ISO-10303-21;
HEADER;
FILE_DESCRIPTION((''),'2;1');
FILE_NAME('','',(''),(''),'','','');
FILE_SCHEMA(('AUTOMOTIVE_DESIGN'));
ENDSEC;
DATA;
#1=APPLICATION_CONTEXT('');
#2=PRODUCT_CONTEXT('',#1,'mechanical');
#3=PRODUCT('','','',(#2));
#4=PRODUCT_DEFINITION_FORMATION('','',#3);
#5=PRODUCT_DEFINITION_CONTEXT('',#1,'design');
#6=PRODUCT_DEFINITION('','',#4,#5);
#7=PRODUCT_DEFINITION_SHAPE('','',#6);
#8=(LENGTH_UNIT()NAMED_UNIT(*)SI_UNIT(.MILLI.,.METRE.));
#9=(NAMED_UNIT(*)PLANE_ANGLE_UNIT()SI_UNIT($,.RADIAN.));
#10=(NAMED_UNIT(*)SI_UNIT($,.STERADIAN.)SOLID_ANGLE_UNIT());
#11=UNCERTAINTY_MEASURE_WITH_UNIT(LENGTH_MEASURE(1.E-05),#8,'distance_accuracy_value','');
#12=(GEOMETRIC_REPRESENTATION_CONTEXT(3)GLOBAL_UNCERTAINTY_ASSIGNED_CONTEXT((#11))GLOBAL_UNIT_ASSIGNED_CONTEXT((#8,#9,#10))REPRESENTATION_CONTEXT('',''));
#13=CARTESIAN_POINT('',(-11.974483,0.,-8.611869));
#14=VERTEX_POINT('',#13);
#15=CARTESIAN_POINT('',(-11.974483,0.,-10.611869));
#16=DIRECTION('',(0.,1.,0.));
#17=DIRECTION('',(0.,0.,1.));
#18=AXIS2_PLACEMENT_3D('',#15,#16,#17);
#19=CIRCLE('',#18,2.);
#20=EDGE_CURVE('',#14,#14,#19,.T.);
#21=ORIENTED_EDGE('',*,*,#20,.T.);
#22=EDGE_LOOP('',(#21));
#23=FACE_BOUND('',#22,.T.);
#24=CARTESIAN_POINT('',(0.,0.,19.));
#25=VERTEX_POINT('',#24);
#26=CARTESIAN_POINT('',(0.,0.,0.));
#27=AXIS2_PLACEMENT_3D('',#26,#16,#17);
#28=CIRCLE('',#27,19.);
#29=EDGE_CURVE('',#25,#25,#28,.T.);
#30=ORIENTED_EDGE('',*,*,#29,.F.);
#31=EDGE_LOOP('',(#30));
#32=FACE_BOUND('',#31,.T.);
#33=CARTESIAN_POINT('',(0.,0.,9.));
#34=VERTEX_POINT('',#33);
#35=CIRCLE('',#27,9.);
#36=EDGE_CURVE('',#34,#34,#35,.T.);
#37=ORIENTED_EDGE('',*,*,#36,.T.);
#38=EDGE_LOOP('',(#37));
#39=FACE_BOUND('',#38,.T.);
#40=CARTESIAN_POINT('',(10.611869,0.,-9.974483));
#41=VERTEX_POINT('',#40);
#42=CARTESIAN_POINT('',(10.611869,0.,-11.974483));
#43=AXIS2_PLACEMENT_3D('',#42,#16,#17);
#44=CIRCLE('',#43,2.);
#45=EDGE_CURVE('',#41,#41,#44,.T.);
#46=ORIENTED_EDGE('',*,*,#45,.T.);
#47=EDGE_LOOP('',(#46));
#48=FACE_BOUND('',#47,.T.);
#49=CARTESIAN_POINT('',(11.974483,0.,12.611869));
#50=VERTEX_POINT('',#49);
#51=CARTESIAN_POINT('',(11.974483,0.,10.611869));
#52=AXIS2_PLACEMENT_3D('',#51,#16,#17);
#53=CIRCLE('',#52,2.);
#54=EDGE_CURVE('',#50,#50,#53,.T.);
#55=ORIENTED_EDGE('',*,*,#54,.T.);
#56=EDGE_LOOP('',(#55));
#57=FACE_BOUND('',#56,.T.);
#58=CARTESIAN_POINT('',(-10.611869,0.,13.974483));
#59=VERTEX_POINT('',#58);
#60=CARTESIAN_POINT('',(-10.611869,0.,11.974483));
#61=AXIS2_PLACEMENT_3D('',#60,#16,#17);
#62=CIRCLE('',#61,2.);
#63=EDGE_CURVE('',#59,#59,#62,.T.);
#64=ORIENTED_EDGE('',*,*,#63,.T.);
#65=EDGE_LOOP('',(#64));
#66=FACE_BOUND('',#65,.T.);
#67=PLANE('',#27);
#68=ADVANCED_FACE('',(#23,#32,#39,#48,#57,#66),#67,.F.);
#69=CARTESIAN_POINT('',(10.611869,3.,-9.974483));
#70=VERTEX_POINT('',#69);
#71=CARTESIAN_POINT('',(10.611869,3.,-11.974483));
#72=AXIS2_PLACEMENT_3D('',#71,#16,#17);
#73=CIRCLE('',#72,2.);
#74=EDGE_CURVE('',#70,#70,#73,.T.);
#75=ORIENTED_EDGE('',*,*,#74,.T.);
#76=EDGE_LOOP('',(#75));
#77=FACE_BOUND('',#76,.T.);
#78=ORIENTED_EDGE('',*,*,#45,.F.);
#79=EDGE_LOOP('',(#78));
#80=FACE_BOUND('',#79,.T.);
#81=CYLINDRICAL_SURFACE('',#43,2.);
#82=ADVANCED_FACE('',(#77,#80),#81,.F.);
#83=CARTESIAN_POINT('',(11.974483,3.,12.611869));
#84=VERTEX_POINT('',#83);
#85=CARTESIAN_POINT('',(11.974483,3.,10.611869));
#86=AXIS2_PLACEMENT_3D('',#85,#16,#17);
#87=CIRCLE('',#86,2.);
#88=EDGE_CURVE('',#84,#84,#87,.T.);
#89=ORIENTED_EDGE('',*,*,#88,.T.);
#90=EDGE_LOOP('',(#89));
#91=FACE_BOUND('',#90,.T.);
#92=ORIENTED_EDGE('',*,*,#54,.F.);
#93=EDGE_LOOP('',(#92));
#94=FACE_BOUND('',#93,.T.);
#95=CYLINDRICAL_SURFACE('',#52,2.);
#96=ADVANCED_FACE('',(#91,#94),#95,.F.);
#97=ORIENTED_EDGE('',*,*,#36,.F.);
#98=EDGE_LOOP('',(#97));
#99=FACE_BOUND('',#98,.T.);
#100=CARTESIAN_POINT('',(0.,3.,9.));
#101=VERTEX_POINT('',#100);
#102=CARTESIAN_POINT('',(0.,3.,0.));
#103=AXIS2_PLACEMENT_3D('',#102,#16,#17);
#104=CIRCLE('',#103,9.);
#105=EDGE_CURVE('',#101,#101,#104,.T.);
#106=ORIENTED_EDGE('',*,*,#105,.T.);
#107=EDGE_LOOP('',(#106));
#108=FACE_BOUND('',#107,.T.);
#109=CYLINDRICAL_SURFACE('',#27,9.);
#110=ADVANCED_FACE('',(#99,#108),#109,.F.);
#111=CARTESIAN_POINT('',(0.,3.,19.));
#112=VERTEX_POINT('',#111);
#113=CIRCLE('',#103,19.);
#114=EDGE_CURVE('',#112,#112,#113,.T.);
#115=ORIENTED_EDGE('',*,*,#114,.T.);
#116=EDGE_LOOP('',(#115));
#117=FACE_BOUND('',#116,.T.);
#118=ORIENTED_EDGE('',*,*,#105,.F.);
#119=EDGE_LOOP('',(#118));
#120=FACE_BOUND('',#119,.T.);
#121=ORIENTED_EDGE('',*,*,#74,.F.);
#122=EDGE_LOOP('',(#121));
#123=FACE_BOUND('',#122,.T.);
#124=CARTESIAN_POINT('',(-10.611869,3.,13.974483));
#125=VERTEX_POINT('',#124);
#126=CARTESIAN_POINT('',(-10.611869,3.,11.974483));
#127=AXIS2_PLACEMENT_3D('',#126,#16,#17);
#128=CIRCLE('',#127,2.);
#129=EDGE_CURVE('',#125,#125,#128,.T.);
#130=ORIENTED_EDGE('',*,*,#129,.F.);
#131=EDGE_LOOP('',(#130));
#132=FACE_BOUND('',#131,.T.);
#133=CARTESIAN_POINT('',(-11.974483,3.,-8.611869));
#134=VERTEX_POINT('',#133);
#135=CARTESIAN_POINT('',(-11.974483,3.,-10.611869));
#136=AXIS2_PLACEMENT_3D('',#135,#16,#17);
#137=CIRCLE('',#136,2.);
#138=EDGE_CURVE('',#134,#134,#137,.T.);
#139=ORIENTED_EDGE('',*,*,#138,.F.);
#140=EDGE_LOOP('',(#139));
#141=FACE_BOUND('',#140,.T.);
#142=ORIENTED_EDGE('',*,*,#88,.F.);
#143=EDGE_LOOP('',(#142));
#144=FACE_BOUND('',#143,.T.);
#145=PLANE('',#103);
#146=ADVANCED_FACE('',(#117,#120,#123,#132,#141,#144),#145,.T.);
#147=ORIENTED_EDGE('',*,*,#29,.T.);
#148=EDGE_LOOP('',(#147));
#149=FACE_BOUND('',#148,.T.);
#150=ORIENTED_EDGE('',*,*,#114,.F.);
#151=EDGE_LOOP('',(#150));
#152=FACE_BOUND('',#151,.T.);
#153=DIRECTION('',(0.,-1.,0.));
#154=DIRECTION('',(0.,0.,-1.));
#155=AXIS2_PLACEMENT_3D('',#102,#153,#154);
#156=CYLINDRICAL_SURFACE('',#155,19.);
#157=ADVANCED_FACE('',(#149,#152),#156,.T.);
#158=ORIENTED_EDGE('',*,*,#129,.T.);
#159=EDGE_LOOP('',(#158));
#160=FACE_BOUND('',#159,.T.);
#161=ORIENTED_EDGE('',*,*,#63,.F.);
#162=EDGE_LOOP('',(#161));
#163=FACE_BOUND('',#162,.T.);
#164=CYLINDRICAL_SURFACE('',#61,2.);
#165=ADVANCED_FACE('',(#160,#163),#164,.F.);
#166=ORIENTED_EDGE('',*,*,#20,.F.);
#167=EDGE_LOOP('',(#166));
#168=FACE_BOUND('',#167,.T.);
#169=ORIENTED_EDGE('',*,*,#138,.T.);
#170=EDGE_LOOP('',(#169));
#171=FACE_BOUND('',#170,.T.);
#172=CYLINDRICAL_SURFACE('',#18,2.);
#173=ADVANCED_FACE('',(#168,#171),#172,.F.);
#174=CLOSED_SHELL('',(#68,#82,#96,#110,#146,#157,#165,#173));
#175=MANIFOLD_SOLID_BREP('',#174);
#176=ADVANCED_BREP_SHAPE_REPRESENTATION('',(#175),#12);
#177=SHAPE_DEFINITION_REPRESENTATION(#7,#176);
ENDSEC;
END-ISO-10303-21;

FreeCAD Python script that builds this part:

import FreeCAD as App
import Part
import Sketcher
from FreeCAD import Vector
Q = App.Units.Quantity

doc = App.newDocument("Part")
body = doc.addObject("PartDesign::Body", "Body")

# Sketch on XZ plane
sketch1 = doc.addObject("Sketcher::SketchObject", "Sketch")
body.addObject(sketch1)
sketch1.AttachmentSupport = (doc.XZ_Plane, [""])
sketch1.MapMode = "FlatFace"
sketch1.addGeometry(Part.Circle(Vector(0, 0, 0), Vector(0, 0, 1), 19), False)
sketch1.addConstraint([
    Sketcher.Constraint("Coincident", 0, 3, -1, 1),
    Sketcher.Constraint("Diameter", 0, Q("38 mm")),
])
pad1 = doc.addObject("PartDesign::Pad", "Pad")
body.addObject(pad1)
pad1.Profile = sketch1
pad1.Length = 3
pad1.Reversed = True

# Sketch on XZ plane
sketch2 = doc.addObject("Sketcher::SketchObject", "Sketch001")
body.addObject(sketch2)
sketch2.AttachmentSupport = (doc.XZ_Plane, [""])
sketch2.MapMode = "FlatFace"
sketch2.AttachmentOffset = App.Placement(Vector(0, 0, -3), App.Rotation())
sketch2.addGeometry([
    Part.Circle(Vector(-12, -10.6, 0), Vector(0, 0, 1), 2),
    Part.Circle(Vector(10.6, -12, 0), Vector(0, 0, 1), 2),
    Part.Circle(Vector(12, 10.6, 0), Vector(0, 0, 1), 2),
    Part.Circle(Vector(-10.6, 12, 0), Vector(0, 0, 1), 2),
], False)
sketch2.addConstraint([
    Sketcher.Constraint("Equal", 0, 1),
    Sketcher.Constraint("Equal", 1, 2),
    Sketcher.Constraint("Equal", 2, 3),
    Sketcher.Constraint("Symmetric", 0, 3, 2, 3, -1, 1),
    Sketcher.Constraint("Symmetric", 1, 3, 3, 3, -1, 1),
    Sketcher.Constraint("Diameter", 0, Q("4 mm")),
    Sketcher.Constraint("DistanceY", 0, 3, -1, 1, Q("10.611869 mm")),
    Sketcher.Constraint("DistanceX", -1, 1, 1, 3, Q("10.611869 mm")),
    Sketcher.Constraint("DistanceX", 0, 3, 1, 3, Q("22.586352 mm")),
    Sketcher.Constraint("DistanceY", 1, 3, 2, 3, Q("22.586352 mm")),
])
pocket1 = doc.addObject("PartDesign::Pocket", "Pocket")
body.addObject(pocket1)
pocket1.Profile = sketch2
pocket1.Length = 3
pocket1.Reversed = True

# Sketch on XZ plane
sketch3 = doc.addObject("Sketcher::SketchObject", "Sketch002")
body.addObject(sketch3)
sketch3.AttachmentSupport = (doc.XZ_Plane, [""])
sketch3.MapMode = "FlatFace"
sketch3.AttachmentOffset = App.Placement(Vector(0, 0, -3), App.Rotation())
sketch3.addGeometry(Part.Circle(Vector(0, 0, 0), Vector(0, 0, 1), 9), False)
sketch3.addConstraint([
    Sketcher.Constraint("Coincident", 0, 3, -1, 1),
    Sketcher.Constraint("Diameter", 0, Q("18 mm")),
])
pocket2 = doc.addObject("PartDesign::Pocket", "Pocket001")
body.addObject(pocket2)
pocket2.Profile = sketch3
pocket2.Length = 3
pocket2.Reversed = True

doc.recompute()
